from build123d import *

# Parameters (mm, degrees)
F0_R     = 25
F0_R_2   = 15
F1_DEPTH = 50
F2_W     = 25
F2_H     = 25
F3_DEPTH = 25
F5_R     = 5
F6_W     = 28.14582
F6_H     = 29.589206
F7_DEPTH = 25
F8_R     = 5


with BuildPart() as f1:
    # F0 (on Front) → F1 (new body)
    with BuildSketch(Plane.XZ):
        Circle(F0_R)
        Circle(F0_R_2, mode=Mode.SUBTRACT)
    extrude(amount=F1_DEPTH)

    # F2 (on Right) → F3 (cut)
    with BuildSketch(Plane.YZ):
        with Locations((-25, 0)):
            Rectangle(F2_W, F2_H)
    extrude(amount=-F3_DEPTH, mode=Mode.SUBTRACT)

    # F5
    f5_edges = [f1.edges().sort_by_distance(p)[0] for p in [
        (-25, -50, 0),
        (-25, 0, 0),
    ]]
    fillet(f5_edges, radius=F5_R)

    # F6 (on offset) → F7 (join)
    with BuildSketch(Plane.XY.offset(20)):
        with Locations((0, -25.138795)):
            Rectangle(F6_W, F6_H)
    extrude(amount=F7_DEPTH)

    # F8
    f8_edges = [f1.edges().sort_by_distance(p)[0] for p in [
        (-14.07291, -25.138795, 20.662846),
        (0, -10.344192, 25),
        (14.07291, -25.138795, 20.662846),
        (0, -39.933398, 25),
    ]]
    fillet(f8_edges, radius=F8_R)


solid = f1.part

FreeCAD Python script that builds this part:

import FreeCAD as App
import Part
import Sketcher


def edges_at(feature, points):
    """Names of the edges that pass closest to the given points."""
    edges = feature.Shape.Edges
    near = lambda p: min(range(len(edges)), key=lambda i: edges[i].distToShape(Part.Vertex(*p))[0])
    return sorted({f"Edge{near(p) + 1}" for p in points})


def add_polygon(sketch, points):
    """Adds a closed chain of lines whose ends are joined by coincident constraints."""
    first, n = sketch.GeometryCount, len(points)
    for a, b in zip(points, points[1:] + points[:1]):
        sketch.addGeometry(Part.LineSegment(App.Vector(*a, 0), App.Vector(*b, 0)), False)
    for i in range(n):
        sketch.addConstraint(Sketcher.Constraint("Coincident", first + i, 2, first + (i + 1) % n, 1))

doc = App.newDocument("Part")
body = doc.addObject("PartDesign::Body", "Body")

# Sketch on XZ plane
sketch1 = doc.addObject("Sketcher::SketchObject", "Sketch")
body.addObject(sketch1)
sketch1.AttachmentSupport = (doc.XZ_Plane, [""])
sketch1.MapMode = "FlatFace"
sketch1.addGeometry([
    Part.Circle(App.Vector(0, 0, 0), App.Vector(0, 0, 1), 25),
    Part.Circle(App.Vector(0, 0, 0), App.Vector(0, 0, 1), 15),
], False)
sketch1.addConstraint([
    Sketcher.Constraint("Coincident", 0, 3, -1, 1),
    Sketcher.Constraint("Coincident", 1, 3, -1, 1),
    Sketcher.Constraint("Diameter", 0, 50.0),
    Sketcher.Constraint("Diameter", 1, 30.0),
])
pad1 = doc.addObject("PartDesign::Pad", "Pad")
body.addObject(pad1)
pad1.Profile = sketch1
pad1.Length = 50

# Sketch on YZ plane
sketch2 = doc.addObject("Sketcher::SketchObject", "Sketch001")
body.addObject(sketch2)
sketch2.AttachmentSupport = (doc.YZ_Plane, [""])
sketch2.MapMode = "FlatFace"
add_polygon(sketch2, [(-38, 12), (-38, -12), (-12, -12), (-12, 12)])  # lines 0-3
sketch2.addConstraint([
    Sketcher.Constraint("Vertical", 0),
    Sketcher.Constraint("Horizontal", 1),
    Sketcher.Constraint("Vertical", 2),
    Sketcher.Constraint("Horizontal", 3),
    Sketcher.Constraint("Equal", 3, 0),
    Sketcher.Constraint("DistanceX", 1, 1, 1, 2, 25.0),
    Sketcher.Constraint("DistanceX", 0, 2, -1, 1, 37.5),
    Sketcher.Constraint("DistanceY", 0, 2, -1, 1, 12.5),
])
pocket1 = doc.addObject("PartDesign::Pocket", "Pocket")
body.addObject(pocket1)
pocket1.Profile = sketch2
pocket1.Length = 25
doc.recompute()

fillet = doc.addObject("PartDesign::Fillet", "Fillet")
body.addObject(fillet)
fillet.Base = (pocket1, edges_at(pocket1, [(-25, -50, 0), (-25, 0, 0)]))
fillet.Radius = 5

# Sketch on XY plane
sketch3 = doc.addObject("Sketcher::SketchObject", "Sketch002")
body.addObject(sketch3)
sketch3.AttachmentSupport = (doc.XY_Plane, [""])
sketch3.MapMode = "FlatFace"
sketch3.AttachmentOffset = App.Placement(App.Vector(0, 0, 20), App.Rotation())
add_polygon(sketch3, [(-14, -10), (-14, -40), (14, -40), (14, -10)])  # lines 0-3
sketch3.addConstraint([
    Sketcher.Constraint("Vertical", 0),
    Sketcher.Constraint("Horizontal", 1),
    Sketcher.Constraint("Vertical", 2),
    Sketcher.Constraint("Horizontal", 3),
    Sketcher.Constraint("DistanceX", 1, 1, 1, 2, 28.14582),
    Sketcher.Constraint("DistanceY", 0, 2, 0, 1, 29.589206),
    Sketcher.Constraint("DistanceX", 0, 2, -1, 1, 14.07291),
    Sketcher.Constraint("DistanceY", 0, 2, -1, 1, 39.933398),
])
pad2 = doc.addObject("PartDesign::Pad", "Pad001")
body.addObject(pad2)
pad2.Profile = sketch3
pad2.Length = 25
doc.recompute()

fillet2 = doc.addObject("PartDesign::Fillet", "Fillet001")
body.addObject(fillet2)
fillet2.Base = (pad2, edges_at(pad2, [
    (-14.073, -25.139, 20.663),
    (0, -10.344, 25),
    (14.073, -25.139, 20.663),
    (0, -39.933, 25),
]))
fillet2.Radius = 5

doc.recompute()
